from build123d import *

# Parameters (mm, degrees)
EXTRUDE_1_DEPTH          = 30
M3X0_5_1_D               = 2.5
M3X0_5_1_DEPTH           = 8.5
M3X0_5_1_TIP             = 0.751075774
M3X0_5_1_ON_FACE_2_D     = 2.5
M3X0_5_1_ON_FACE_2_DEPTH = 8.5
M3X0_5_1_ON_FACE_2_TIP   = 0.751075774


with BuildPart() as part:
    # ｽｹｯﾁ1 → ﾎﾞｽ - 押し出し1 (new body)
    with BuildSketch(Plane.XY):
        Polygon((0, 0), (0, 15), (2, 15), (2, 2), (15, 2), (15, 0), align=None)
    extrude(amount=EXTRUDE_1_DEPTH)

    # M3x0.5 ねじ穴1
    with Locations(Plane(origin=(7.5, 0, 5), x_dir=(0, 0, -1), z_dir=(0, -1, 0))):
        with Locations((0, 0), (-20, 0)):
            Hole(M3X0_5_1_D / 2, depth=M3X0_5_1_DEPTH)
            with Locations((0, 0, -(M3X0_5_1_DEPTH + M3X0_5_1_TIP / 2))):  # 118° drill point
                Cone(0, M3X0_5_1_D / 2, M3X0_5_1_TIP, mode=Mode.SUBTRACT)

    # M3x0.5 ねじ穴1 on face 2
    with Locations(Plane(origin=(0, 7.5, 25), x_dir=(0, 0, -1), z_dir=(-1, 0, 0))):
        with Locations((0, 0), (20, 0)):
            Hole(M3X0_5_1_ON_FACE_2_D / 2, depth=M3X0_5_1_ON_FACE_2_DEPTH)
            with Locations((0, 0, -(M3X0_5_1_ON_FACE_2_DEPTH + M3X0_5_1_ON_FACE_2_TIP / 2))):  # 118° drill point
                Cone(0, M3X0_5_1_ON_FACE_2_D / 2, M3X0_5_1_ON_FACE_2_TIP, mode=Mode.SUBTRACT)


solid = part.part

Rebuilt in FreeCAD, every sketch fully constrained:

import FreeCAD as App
import Part
import Sketcher
from FreeCAD import Vector
Q = App.Units.Quantity


def add_polygon(sketch, points):
    """Adds a closed chain of lines whose ends are joined by coincident constraints."""
    first, n = sketch.GeometryCount, len(points)
    for a, b in zip(points, points[1:] + points[:1]):
        sketch.addGeometry(Part.LineSegment(App.Vector(*a, 0), App.Vector(*b, 0)), False)
    for i in range(n):
        sketch.addConstraint(Sketcher.Constraint("Coincident", first + i, 2, first + (i + 1) % n, 1))

doc = App.newDocument("Part")
body = doc.addObject("PartDesign::Body", "Body")

# Sketch on XY plane
sketch1 = doc.addObject("Sketcher::SketchObject", "Sketch")
body.addObject(sketch1)
sketch1.AttachmentSupport = (doc.XY_Plane, [""])
sketch1.MapMode = "FlatFace"
add_polygon(sketch1, [(0, 15), (0, 0), (15, 0), (15, 2), (2, 2), (2, 15)])  # lines 0-5
sketch1.addConstraint([
    Sketcher.Constraint("Vertical", 0),
    Sketcher.Constraint("Horizontal", 1),
    Sketcher.Constraint("Vertical", 2),
    Sketcher.Constraint("Horizontal", 3),
    Sketcher.Constraint("Vertical", 4),
    Sketcher.Constraint("Horizontal", 5),
    Sketcher.Constraint("Coincident", 0, 2, -1, 1),
    Sketcher.Constraint("Equal", 1, 0),
    Sketcher.Constraint("Equal", 5, 2),
    Sketcher.Constraint("DistanceX", 1, 1, 1, 2, Q("15 mm")),
    Sketcher.Constraint("DistanceX", 3, 2, 3, 1, Q("13 mm")),
])
pad1 = doc.addObject("PartDesign::Pad", "Pad")
body.addObject(pad1)
pad1.Profile = sketch1
pad1.Length = 30

# Sketch on XZ plane
sketch2 = doc.addObject("Sketcher::SketchObject", "Sketch001")
body.addObject(sketch2)
sketch2.AttachmentSupport = (doc.XZ_Plane, [""])
sketch2.MapMode = "FlatFace"
sketch2.addGeometry([
    Part.Circle(Vector(7.5, 5, 0), Vector(0, 0, 1), 1.2),
    Part.Circle(Vector(7.5, 25, 0), Vector(0, 0, 1), 1.2),
], False)
sketch2.addConstraint([
    Sketcher.Constraint("Equal", 0, 1),
    Sketcher.Constraint("Vertical", 0, 3, 1, 3),
    Sketcher.Constraint("Diameter", 0, Q("2.5 mm")),
    Sketcher.Constraint("DistanceY", -1, 1, 0, 3, Q("5 mm")),
    Sketcher.Constraint("DistanceY", -1, 1, 1, 3, Q("25 mm")),
    Sketcher.Constraint("DistanceX", -1, 1, 0, 3, Q("7.5 mm")),
])
doc.recompute()
hole = doc.addObject("PartDesign::Hole", "Hole")
body.addObject(hole)
hole.Profile = sketch2
hole.ThreadType = "None"
hole.Diameter = 2.5
hole.DepthType = "Dimension"
hole.Depth = 8.5
hole.DrillPoint = "Angled"
hole.DrillPointAngle = 118

# Sketch on YZ plane
sketch3 = doc.addObject("Sketcher::SketchObject", "Sketch002")
body.addObject(sketch3)
sketch3.AttachmentSupport = (doc.YZ_Plane, [""])
sketch3.MapMode = "FlatFace"
sketch3.addGeometry([
    Part.Circle(Vector(7.5, 25, 0), Vector(0, 0, 1), 1.2),
    Part.Circle(Vector(7.5, 5, 0), Vector(0, 0, 1), 1.2),
], False)
sketch3.addConstraint([
    Sketcher.Constraint("Equal", 0, 1),
    Sketcher.Constraint("Vertical", 0, 3, 1, 3),
    Sketcher.Constraint("Diameter", 0, Q("2.5 mm")),
    Sketcher.Constraint("DistanceY", -1, 1, 0, 3, Q("25 mm")),
    Sketcher.Constraint("DistanceY", -1, 1, 1, 3, Q("5 mm")),
    Sketcher.Constraint("DistanceX", -1, 1, 0, 3, Q("7.5 mm")),
])
doc.recompute()
hole2 = doc.addObject("PartDesign::Hole", "Hole001")
body.addObject(hole2)
hole2.Profile = sketch3
hole2.ThreadType = "None"
hole2.Diameter = 2.5
hole2.DepthType = "Dimension"
hole2.Depth = 8.5
hole2.DrillPoint = "Angled"
hole2.DrillPointAngle = 118
hole2.Reversed = True

doc.recompute()
